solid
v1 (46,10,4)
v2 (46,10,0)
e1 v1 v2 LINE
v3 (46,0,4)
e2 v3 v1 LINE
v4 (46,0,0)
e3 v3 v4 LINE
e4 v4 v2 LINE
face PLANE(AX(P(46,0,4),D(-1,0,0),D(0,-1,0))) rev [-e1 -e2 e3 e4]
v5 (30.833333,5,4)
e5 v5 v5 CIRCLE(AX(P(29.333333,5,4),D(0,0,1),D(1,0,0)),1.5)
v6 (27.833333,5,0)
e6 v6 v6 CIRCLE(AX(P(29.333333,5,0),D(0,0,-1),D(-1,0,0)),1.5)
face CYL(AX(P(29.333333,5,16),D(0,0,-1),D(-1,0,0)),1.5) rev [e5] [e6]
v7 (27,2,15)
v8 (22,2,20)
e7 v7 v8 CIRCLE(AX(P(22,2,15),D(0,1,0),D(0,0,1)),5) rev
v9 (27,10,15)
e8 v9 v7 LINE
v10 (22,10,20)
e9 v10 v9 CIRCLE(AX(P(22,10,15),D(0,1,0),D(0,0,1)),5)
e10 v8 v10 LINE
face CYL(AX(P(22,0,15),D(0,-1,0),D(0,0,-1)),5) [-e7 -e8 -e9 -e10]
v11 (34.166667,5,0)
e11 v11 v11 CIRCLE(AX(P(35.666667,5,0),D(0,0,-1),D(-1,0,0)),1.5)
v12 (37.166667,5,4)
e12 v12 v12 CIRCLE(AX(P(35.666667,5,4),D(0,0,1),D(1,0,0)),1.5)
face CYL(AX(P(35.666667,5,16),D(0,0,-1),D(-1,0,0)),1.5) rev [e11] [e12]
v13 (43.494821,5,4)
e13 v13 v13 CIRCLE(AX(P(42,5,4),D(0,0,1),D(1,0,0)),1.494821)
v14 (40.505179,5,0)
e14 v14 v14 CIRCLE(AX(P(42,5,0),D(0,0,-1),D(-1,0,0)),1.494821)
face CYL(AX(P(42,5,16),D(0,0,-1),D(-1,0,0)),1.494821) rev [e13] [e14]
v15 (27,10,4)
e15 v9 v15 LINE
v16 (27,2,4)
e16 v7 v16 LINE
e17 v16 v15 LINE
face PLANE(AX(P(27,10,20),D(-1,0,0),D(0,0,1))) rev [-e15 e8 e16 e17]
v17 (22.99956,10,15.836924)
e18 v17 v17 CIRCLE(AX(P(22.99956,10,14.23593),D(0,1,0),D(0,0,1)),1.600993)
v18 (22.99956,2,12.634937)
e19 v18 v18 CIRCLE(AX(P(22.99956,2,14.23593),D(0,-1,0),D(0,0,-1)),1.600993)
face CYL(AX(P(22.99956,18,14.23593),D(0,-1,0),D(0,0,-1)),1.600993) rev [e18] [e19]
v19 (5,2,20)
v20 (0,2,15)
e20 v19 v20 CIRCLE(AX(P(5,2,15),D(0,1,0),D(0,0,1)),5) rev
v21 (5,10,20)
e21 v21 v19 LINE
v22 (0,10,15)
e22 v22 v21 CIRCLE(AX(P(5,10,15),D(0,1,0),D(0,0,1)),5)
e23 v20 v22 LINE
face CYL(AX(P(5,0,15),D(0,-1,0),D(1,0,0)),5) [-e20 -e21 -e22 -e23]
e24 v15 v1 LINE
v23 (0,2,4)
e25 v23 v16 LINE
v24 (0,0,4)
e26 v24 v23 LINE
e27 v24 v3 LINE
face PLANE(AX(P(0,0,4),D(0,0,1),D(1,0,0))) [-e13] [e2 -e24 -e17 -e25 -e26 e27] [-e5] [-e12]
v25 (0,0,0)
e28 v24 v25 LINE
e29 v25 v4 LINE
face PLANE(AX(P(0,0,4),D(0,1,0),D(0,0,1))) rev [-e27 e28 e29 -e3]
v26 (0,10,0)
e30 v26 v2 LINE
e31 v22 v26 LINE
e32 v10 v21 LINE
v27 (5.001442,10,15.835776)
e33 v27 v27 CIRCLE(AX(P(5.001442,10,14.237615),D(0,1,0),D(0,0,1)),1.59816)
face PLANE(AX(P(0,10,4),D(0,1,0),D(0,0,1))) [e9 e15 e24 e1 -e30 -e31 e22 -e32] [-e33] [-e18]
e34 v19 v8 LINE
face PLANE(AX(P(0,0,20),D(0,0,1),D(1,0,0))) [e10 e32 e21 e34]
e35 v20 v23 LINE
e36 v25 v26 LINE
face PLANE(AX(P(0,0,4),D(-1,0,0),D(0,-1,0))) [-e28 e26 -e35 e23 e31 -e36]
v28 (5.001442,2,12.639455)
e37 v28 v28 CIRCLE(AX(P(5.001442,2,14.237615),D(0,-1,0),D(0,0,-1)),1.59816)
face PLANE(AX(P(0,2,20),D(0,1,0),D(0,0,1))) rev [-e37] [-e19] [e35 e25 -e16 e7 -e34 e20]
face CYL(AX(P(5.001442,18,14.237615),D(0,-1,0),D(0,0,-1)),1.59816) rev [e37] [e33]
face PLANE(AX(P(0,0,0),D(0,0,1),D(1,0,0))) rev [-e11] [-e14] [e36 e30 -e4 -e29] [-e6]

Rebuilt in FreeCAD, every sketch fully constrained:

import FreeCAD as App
import Part
import Sketcher


def edges_at(feature, points):
    """Names of the edges that pass closest to the given points."""
    edges = feature.Shape.Edges
    near = lambda p: min(range(len(edges)), key=lambda i: edges[i].distToShape(Part.Vertex(*p))[0])
    return sorted({f"Edge{near(p) + 1}" for p in points})


def add_polygon(sketch, points):
    """Adds a closed chain of lines whose ends are joined by coincident constraints."""
    first, n = sketch.GeometryCount, len(points)
    for a, b in zip(points, points[1:] + points[:1]):
        sketch.addGeometry(Part.LineSegment(App.Vector(*a, 0), App.Vector(*b, 0)), False)
    for i in range(n):
        sketch.addConstraint(Sketcher.Constraint("Coincident", first + i, 2, first + (i + 1) % n, 1))

doc = App.newDocument("Part")
body = doc.addObject("PartDesign::Body", "Body")

# Sketch on XY plane
sketch1 = body.newObject("Sketcher::SketchObject", "Sketch")
sketch1.AttachmentSupport = (doc.getObject("XY_Plane"), [""])
sketch1.MapMode = "FlatFace"
add_polygon(sketch1, [(0, 10), (0, 0), (46, 0), (46, 10)])  # lines 0-3
sketch1.addConstraint(Sketcher.Constraint("Vertical", 0))
sketch1.addConstraint(Sketcher.Constraint("Horizontal", 1))
sketch1.addConstraint(Sketcher.Constraint("Vertical", 2))
sketch1.addConstraint(Sketcher.Constraint("Horizontal", 3))
sketch1.addConstraint(Sketcher.Constraint("Coincident", 0, 2, -1, 1))
sketch1.addConstraint(Sketcher.Constraint("DistanceX", 1, 1, 1, 2, 46.0))
sketch1.addConstraint(Sketcher.Constraint("DistanceY", 0, 2, 0, 1, 10.0))
pad1 = body.newObject("PartDesign::Pad", "Pad")
pad1.Profile = sketch1
pad1.Length = 4

# Sketch on XY plane
sketch2 = body.newObject("Sketcher::SketchObject", "Sketch001")
sketch2.AttachmentSupport = (doc.getObject("XY_Plane"), [""])
sketch2.MapMode = "FlatFace"
sketch2.AttachmentOffset = App.Placement(App.Vector(0, 0, 4), App.Rotation())
add_polygon(sketch2, [(0, 10), (0, 2), (27, 2), (27, 10)])  # lines 0-3
sketch2.addConstraint(Sketcher.Constraint("Vertical", 0))
sketch2.addConstraint(Sketcher.Constraint("Horizontal", 1))
sketch2.addConstraint(Sketcher.Constraint("Vertical", 2))
sketch2.addConstraint(Sketcher.Constraint("Horizontal", 3))
sketch2.addConstraint(Sketcher.Constraint("PointOnObject", 0, 2, -2))
sketch2.addConstraint(Sketcher.Constraint("DistanceX", 1, 1, 1, 2, 27.0))
sketch2.addConstraint(Sketcher.Constraint("DistanceY", 0, 2, 0, 1, 8.0))
sketch2.addConstraint(Sketcher.Constraint("DistanceY", -1, 1, 0, 2, 2.0))
pad2 = body.newObject("PartDesign::Pad", "Pad001")
pad2.Profile = sketch2
pad2.Length = 16

# Sketch on XZ plane
sketch3 = body.newObject("Sketcher::SketchObject", "Sketch002")
sketch3.AttachmentSupport = (doc.getObject("XZ_Plane"), [""])
sketch3.MapMode = "FlatFace"
sketch3.AttachmentOffset = App.Placement(App.Vector(0, 0, -2), App.Rotation())
sketch3.addGeometry(Part.Circle(App.Vector(23, 14.2, 0), App.Vector(0, 0, 1), 1.6), False)
sketch3.addGeometry(Part.Circle(App.Vector(5, 14.2, 0), App.Vector(0, 0, 1), 1.6), False)
sketch3.addConstraint(Sketcher.Constraint("Diameter", 1, 3.196321))
sketch3.addConstraint(Sketcher.Constraint("Diameter", 0, 3.201987))
sketch3.addConstraint(Sketcher.Constraint("DistanceX", -1, 1, 0, 3, 22.99956))
sketch3.addConstraint(Sketcher.Constraint("DistanceY", -1, 1, 0, 3, 14.23593))
sketch3.addConstraint(Sketcher.Constraint("DistanceX", -1, 1, 1, 3, 5.001442))
sketch3.addConstraint(Sketcher.Constraint("DistanceY", -1, 1, 1, 3, 14.237615))
pocket1 = body.newObject("PartDesign::Pocket", "Pocket")
pocket1.Profile = sketch3
pocket1.Length = 16

# Sketch on XY plane
sketch4 = body.newObject("Sketcher::SketchObject", "Sketch003")
sketch4.AttachmentSupport = (doc.getObject("XY_Plane"), [""])
sketch4.MapMode = "FlatFace"
sketch4.addGeometry(Part.Circle(App.Vector(42, 5, 0), App.Vector(0, 0, 1), 1.5), False)
sketch4.addGeometry(Part.Circle(App.Vector(29.3, 5, 0), App.Vector(0, 0, 1), 1.5), False)
sketch4.addGeometry(Part.Circle(App.Vector(35.7, 5, 0), App.Vector(0, 0, 1), 1.5), False)
sketch4.addConstraint(Sketcher.Constraint("Equal", 1, 2))
sketch4.addConstraint(Sketcher.Constraint("Horizontal", 0, 3, 1, 3))
sketch4.addConstraint(Sketcher.Constraint("Horizontal", 1, 3, 2, 3))
sketch4.addConstraint(Sketcher.Constraint("Diameter", 1, 3.0))
sketch4.addConstraint(Sketcher.Constraint("DistanceX", -1, 1, 0, 3, 42.0))
sketch4.addConstraint(Sketcher.Constraint("DistanceY", -1, 1, 0, 3, 5.0))
sketch4.addConstraint(Sketcher.Constraint("Diameter", 0, 2.989642))
sketch4.addConstraint(Sketcher.Constraint("DistanceX", -1, 1, 1, 3, 29.333333))
sketch4.addConstraint(Sketcher.Constraint("DistanceX", -1, 1, 2, 3, 35.666667))
pocket2 = body.newObject("PartDesign::Pocket", "Pocket001")
pocket2.Profile = sketch4
pocket2.Length = 16
pocket2.Reversed = True
doc.recompute()

fillet = body.newObject("PartDesign::Fillet", "Fillet")
fillet.Base = (pocket2, edges_at(pocket2, [(0, 6, 20), (27, 6, 20)]))
fillet.Radius = 5

doc.recompute()
